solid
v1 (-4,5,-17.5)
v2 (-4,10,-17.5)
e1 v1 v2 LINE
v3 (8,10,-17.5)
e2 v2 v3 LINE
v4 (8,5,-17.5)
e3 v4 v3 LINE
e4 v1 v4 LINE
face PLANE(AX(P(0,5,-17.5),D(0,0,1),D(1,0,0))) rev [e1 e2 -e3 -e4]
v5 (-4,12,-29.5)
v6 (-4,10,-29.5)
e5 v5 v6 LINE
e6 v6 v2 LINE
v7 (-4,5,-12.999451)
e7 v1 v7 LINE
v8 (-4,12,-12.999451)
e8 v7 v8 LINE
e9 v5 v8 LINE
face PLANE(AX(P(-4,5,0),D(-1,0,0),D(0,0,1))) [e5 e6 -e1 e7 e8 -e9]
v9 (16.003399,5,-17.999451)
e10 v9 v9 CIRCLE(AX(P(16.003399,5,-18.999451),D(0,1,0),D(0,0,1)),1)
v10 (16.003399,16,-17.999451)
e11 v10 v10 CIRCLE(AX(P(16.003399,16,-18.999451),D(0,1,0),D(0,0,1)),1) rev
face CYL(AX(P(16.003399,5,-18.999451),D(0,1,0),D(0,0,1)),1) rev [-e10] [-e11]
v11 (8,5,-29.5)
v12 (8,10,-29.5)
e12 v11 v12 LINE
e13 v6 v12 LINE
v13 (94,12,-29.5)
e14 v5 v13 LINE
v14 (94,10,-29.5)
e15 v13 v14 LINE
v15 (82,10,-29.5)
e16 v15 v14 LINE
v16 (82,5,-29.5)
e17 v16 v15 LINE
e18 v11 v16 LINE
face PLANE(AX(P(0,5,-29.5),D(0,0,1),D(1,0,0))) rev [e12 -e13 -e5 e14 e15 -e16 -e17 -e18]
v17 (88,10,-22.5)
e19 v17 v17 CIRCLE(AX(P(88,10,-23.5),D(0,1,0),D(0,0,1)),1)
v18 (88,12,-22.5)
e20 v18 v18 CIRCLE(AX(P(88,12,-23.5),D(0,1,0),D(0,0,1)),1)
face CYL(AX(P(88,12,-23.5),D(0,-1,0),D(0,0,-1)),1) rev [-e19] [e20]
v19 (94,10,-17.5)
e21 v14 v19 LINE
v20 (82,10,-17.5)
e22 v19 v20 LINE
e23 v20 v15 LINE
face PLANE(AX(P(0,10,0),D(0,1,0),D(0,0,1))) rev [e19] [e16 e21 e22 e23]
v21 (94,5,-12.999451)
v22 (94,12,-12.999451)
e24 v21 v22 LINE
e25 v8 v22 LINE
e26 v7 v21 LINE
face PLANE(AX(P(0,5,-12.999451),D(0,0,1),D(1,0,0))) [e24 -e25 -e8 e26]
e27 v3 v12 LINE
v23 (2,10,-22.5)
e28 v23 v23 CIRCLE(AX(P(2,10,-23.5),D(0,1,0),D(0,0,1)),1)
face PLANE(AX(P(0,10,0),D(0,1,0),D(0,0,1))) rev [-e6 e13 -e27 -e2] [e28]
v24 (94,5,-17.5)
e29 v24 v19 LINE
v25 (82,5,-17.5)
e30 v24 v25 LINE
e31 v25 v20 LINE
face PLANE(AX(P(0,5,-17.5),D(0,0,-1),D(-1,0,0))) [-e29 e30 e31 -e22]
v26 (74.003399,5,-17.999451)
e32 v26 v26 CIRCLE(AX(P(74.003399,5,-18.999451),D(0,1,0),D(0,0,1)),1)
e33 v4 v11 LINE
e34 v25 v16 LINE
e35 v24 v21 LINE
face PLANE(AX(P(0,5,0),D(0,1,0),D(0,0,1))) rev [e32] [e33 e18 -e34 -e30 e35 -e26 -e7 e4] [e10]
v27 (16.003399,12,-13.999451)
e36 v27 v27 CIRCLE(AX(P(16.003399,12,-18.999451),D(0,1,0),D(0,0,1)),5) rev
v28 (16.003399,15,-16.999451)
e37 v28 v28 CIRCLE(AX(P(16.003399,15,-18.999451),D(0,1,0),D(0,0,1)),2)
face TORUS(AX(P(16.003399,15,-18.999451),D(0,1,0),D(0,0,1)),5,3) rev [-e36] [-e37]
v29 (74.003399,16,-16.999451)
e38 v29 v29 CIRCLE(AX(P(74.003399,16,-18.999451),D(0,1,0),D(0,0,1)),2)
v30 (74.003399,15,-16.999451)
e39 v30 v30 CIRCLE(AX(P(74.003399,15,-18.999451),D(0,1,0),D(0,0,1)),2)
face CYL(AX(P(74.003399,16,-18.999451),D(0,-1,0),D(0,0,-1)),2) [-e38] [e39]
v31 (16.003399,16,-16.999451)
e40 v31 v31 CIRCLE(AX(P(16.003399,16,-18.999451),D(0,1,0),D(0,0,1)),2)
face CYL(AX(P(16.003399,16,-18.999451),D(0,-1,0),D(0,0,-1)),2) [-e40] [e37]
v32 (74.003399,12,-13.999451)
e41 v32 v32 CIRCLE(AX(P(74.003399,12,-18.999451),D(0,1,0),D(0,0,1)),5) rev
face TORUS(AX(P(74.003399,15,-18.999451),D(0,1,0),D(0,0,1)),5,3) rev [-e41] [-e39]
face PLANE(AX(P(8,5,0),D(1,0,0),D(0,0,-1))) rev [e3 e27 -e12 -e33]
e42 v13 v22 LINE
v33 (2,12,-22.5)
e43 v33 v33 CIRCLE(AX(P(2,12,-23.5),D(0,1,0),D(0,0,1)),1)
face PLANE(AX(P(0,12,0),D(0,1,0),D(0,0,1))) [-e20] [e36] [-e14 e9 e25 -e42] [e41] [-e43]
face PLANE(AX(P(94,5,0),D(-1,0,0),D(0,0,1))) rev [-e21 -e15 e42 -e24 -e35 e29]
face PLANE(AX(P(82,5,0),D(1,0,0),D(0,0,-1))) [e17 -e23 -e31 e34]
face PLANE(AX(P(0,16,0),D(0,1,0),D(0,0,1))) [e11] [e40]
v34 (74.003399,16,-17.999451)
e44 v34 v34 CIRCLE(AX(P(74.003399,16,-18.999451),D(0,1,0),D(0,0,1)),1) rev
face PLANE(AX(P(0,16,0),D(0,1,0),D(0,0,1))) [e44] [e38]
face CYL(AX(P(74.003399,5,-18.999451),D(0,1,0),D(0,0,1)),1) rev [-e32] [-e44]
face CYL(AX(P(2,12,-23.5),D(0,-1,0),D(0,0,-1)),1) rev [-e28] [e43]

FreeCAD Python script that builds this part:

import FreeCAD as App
import Part
import Sketcher
Q = App.Units.Quantity


def edges_at(feature, points):
    """Names of the edges that pass closest to the given points."""
    edges = feature.Shape.Edges
    near = lambda p: min(range(len(edges)), key=lambda i: edges[i].distToShape(Part.Vertex(*p))[0])
    return sorted({f"Edge{near(p) + 1}" for p in points})


def add_polygon(sketch, points):
    """Adds a closed chain of lines whose ends are joined by coincident constraints."""
    first, n = sketch.GeometryCount, len(points)
    for a, b in zip(points, points[1:] + points[:1]):
        sketch.addGeometry(Part.LineSegment(App.Vector(*a, 0), App.Vector(*b, 0)), False)
    for i in range(n):
        sketch.addConstraint(Sketcher.Constraint("Coincident", first + i, 2, first + (i + 1) % n, 1))

doc = App.newDocument("Part")
body = doc.addObject("PartDesign::Body", "Body")

# Sketch on XZ plane
sketch1 = body.newObject("Sketcher::SketchObject", "Sketch")
sketch1.AttachmentSupport = (doc.getObject("XZ_Plane"), [""])
sketch1.MapMode = "FlatFace"
sketch1.AttachmentOffset = App.Placement(App.Vector(0, 0, -10), App.Rotation())
add_polygon(sketch1, [(8, -17.5), (-4, -17.5), (-4, -13), (94, -13), (94, -17.5), (82, -17.5), (82, -29.5), (8, -29.5)])  # lines 0-7
sketch1.addGeometry(Part.Circle(App.Vector(16, -19, 0), App.Vector(0, 0, 1), 1), False)  # 8
sketch1.addGeometry(Part.Circle(App.Vector(74, -19, 0), App.Vector(0, 0, 1), 1), False)  # 9
sketch1.addConstraint(Sketcher.Constraint("Horizontal", 0))
sketch1.addConstraint(Sketcher.Constraint("Vertical", 1))
sketch1.addConstraint(Sketcher.Constraint("Horizontal", 2))
sketch1.addConstraint(Sketcher.Constraint("Vertical", 3))
sketch1.addConstraint(Sketcher.Constraint("Horizontal", 4))
sketch1.addConstraint(Sketcher.Constraint("Vertical", 5))
sketch1.addConstraint(Sketcher.Constraint("Horizontal", 6))
sketch1.addConstraint(Sketcher.Constraint("Vertical", 7))
sketch1.addConstraint(Sketcher.Constraint("Equal", 8, 9))
sketch1.addConstraint(Sketcher.Constraint("Horizontal", 8, 3, 9, 3))
sketch1.addConstraint(Sketcher.Constraint("Horizontal", 0, 2, 3, 2))
sketch1.addConstraint(Sketcher.Constraint("Equal", 0, 4))
sketch1.addConstraint(Sketcher.Constraint("Equal", 4, 5))
sketch1.addConstraint(Sketcher.Constraint("Diameter", 8, Q("2 mm")))
sketch1.addConstraint(Sketcher.Constraint("DistanceX", 0, 2, 0, 1, Q("12 mm")))
sketch1.addConstraint(Sketcher.Constraint("DistanceX", 2, 1, 2, 2, Q("97.999999 mm")))
sketch1.addConstraint(Sketcher.Constraint("DistanceX", 0, 2, -1, 1, Q("4 mm")))
sketch1.addConstraint(Sketcher.Constraint("DistanceX", 8, 3, 9, 3, Q("58 mm")))
sketch1.addConstraint(Sketcher.Constraint("DistanceY", 8, 3, 1, 2, Q("6 mm")))
sketch1.addConstraint(Sketcher.Constraint("DistanceY", 0, 2, -1, 1, Q("17.5 mm")))
sketch1.addConstraint(Sketcher.Constraint("DistanceY", 1, 1, 1, 2, Q("4.500549 mm")))
sketch1.addConstraint(Sketcher.Constraint("DistanceX", -1, 1, 8, 3, Q("16.003399 mm")))
pad1 = body.newObject("PartDesign::Pad", "Pad")
pad1.Profile = sketch1
pad1.Length = 5

# Sketch on XZ plane
sketch2 = body.newObject("Sketcher::SketchObject", "Sketch001")
sketch2.AttachmentSupport = (doc.getObject("XZ_Plane"), [""])
sketch2.MapMode = "FlatFace"
sketch2.AttachmentOffset = App.Placement(App.Vector(0, 0, -12), App.Rotation())
add_polygon(sketch2, [(-4, -29.5), (-4, -13), (94, -13), (94, -29.5)])  # lines 0-3
sketch2.addGeometry(Part.Circle(App.Vector(16, -19, 0), App.Vector(0, 0, 1), 1), False)  # 4
sketch2.addGeometry(Part.Circle(App.Vector(74, -19, 0), App.Vector(0, 0, 1), 1), False)  # 5
sketch2.addGeometry(Part.Circle(App.Vector(2, -23.5, 0), App.Vector(0, 0, 1), 1), False)  # 6
sketch2.addGeometry(Part.Circle(App.Vector(88, -23.5, 0), App.Vector(0, 0, 1), 1), False)  # 7
sketch2.addConstraint(Sketcher.Constraint("Vertical", 0))
sketch2.addConstraint(Sketcher.Constraint("Horizontal", 1))
sketch2.addConstraint(Sketcher.Constraint("Vertical", 2))
sketch2.addConstraint(Sketcher.Constraint("Horizontal", 3))
sketch2.addConstraint(Sketcher.Constraint("Equal", 4, 5))
sketch2.addConstraint(Sketcher.Constraint("Equal", 5, 6))
sketch2.addConstraint(Sketcher.Constraint("Equal", 6, 7))
sketch2.addConstraint(Sketcher.Constraint("Horizontal", 4, 3, 5, 3))
sketch2.addConstraint(Sketcher.Constraint("Horizontal", 6, 3, 7, 3))
sketch2.addConstraint(Sketcher.Constraint("Diameter", 4, Q("2 mm")))
sketch2.addConstraint(Sketcher.Constraint("DistanceX", 1, 1, 1, 2, Q("97.999999 mm")))
sketch2.addConstraint(Sketcher.Constraint("DistanceX", -1, 1, 6, 3, Q("2 mm")))
sketch2.addConstraint(Sketcher.Constraint("DistanceX", -1, 1, 7, 3, Q("88 mm")))
sketch2.addConstraint(Sketcher.Constraint("DistanceX", 0, 2, -1, 1, Q("4 mm")))
sketch2.addConstraint(Sketcher.Constraint("DistanceX", 4, 3, 5, 3, Q("58 mm")))
sketch2.addConstraint(Sketcher.Constraint("DistanceY", 4, 3, 0, 2, Q("6 mm")))
sketch2.addConstraint(Sketcher.Constraint("DistanceY", 2, 2, 7, 3, Q("6 mm")))
sketch2.addConstraint(Sketcher.Constraint("DistanceY", 6, 3, -1, 1, Q("23.5 mm")))
sketch2.addConstraint(Sketcher.Constraint("DistanceY", 0, 1, 0, 2, Q("16.500549 mm")))
sketch2.addConstraint(Sketcher.Constraint("DistanceX", -1, 1, 4, 3, Q("16.003399 mm")))
pad2 = body.newObject("PartDesign::Pad", "Pad001")
pad2.Profile = sketch2
pad2.Length = 2

# Sketch on XZ plane
sketch3 = body.newObject("Sketcher::SketchObject", "Sketch002")
sketch3.AttachmentSupport = (doc.getObject("XZ_Plane"), [""])
sketch3.MapMode = "FlatFace"
sketch3.AttachmentOffset = App.Placement(App.Vector(0, 0, -16), App.Rotation())
sketch3.addGeometry(Part.Circle(App.Vector(16, -19, 0), App.Vector(0, 0, 1), 2), False)
sketch3.addGeometry(Part.Circle(App.Vector(16, -19, 0), App.Vector(0, 0, 1), 1), False)
sketch3.addGeometry(Part.Circle(App.Vector(74, -19, 0), App.Vector(0, 0, 1), 2), False)
sketch3.addGeometry(Part.Circle(App.Vector(74, -19, 0), App.Vector(0, 0, 1), 1), False)
sketch3.addConstraint(Sketcher.Constraint("Coincident", 1, 3, 0, 3))
sketch3.addConstraint(Sketcher.Constraint("Coincident", 3, 3, 2, 3))
sketch3.addConstraint(Sketcher.Constraint("Equal", 0, 2))
sketch3.addConstraint(Sketcher.Constraint("Equal", 1, 3))
sketch3.addConstraint(Sketcher.Constraint("Horizontal", 1, 3, 2, 3))
sketch3.addConstraint(Sketcher.Constraint("Diameter", 0, Q("4 mm")))
sketch3.addConstraint(Sketcher.Constraint("Diameter", 1, Q("2 mm")))
sketch3.addConstraint(Sketcher.Constraint("DistanceX", 0, 3, 2, 3, Q("58 mm")))
sketch3.addConstraint(Sketcher.Constraint("DistanceX", -1, 1, 0, 3, Q("16.003399 mm")))
sketch3.addConstraint(Sketcher.Constraint("DistanceY", 0, 3, -1, 1, Q("18.999451 mm")))
pad3 = body.newObject("PartDesign::Pad", "Pad002")
pad3.Profile = sketch3
pad3.Length = 4
doc.recompute()

fillet = body.newObject("PartDesign::Fillet", "Fillet")
fillet.Base = (pad3, edges_at(pad3, [(16.003, 12, -20.999), (74.003, 12, -20.999)]))
fillet.Radius = 3

doc.recompute()
